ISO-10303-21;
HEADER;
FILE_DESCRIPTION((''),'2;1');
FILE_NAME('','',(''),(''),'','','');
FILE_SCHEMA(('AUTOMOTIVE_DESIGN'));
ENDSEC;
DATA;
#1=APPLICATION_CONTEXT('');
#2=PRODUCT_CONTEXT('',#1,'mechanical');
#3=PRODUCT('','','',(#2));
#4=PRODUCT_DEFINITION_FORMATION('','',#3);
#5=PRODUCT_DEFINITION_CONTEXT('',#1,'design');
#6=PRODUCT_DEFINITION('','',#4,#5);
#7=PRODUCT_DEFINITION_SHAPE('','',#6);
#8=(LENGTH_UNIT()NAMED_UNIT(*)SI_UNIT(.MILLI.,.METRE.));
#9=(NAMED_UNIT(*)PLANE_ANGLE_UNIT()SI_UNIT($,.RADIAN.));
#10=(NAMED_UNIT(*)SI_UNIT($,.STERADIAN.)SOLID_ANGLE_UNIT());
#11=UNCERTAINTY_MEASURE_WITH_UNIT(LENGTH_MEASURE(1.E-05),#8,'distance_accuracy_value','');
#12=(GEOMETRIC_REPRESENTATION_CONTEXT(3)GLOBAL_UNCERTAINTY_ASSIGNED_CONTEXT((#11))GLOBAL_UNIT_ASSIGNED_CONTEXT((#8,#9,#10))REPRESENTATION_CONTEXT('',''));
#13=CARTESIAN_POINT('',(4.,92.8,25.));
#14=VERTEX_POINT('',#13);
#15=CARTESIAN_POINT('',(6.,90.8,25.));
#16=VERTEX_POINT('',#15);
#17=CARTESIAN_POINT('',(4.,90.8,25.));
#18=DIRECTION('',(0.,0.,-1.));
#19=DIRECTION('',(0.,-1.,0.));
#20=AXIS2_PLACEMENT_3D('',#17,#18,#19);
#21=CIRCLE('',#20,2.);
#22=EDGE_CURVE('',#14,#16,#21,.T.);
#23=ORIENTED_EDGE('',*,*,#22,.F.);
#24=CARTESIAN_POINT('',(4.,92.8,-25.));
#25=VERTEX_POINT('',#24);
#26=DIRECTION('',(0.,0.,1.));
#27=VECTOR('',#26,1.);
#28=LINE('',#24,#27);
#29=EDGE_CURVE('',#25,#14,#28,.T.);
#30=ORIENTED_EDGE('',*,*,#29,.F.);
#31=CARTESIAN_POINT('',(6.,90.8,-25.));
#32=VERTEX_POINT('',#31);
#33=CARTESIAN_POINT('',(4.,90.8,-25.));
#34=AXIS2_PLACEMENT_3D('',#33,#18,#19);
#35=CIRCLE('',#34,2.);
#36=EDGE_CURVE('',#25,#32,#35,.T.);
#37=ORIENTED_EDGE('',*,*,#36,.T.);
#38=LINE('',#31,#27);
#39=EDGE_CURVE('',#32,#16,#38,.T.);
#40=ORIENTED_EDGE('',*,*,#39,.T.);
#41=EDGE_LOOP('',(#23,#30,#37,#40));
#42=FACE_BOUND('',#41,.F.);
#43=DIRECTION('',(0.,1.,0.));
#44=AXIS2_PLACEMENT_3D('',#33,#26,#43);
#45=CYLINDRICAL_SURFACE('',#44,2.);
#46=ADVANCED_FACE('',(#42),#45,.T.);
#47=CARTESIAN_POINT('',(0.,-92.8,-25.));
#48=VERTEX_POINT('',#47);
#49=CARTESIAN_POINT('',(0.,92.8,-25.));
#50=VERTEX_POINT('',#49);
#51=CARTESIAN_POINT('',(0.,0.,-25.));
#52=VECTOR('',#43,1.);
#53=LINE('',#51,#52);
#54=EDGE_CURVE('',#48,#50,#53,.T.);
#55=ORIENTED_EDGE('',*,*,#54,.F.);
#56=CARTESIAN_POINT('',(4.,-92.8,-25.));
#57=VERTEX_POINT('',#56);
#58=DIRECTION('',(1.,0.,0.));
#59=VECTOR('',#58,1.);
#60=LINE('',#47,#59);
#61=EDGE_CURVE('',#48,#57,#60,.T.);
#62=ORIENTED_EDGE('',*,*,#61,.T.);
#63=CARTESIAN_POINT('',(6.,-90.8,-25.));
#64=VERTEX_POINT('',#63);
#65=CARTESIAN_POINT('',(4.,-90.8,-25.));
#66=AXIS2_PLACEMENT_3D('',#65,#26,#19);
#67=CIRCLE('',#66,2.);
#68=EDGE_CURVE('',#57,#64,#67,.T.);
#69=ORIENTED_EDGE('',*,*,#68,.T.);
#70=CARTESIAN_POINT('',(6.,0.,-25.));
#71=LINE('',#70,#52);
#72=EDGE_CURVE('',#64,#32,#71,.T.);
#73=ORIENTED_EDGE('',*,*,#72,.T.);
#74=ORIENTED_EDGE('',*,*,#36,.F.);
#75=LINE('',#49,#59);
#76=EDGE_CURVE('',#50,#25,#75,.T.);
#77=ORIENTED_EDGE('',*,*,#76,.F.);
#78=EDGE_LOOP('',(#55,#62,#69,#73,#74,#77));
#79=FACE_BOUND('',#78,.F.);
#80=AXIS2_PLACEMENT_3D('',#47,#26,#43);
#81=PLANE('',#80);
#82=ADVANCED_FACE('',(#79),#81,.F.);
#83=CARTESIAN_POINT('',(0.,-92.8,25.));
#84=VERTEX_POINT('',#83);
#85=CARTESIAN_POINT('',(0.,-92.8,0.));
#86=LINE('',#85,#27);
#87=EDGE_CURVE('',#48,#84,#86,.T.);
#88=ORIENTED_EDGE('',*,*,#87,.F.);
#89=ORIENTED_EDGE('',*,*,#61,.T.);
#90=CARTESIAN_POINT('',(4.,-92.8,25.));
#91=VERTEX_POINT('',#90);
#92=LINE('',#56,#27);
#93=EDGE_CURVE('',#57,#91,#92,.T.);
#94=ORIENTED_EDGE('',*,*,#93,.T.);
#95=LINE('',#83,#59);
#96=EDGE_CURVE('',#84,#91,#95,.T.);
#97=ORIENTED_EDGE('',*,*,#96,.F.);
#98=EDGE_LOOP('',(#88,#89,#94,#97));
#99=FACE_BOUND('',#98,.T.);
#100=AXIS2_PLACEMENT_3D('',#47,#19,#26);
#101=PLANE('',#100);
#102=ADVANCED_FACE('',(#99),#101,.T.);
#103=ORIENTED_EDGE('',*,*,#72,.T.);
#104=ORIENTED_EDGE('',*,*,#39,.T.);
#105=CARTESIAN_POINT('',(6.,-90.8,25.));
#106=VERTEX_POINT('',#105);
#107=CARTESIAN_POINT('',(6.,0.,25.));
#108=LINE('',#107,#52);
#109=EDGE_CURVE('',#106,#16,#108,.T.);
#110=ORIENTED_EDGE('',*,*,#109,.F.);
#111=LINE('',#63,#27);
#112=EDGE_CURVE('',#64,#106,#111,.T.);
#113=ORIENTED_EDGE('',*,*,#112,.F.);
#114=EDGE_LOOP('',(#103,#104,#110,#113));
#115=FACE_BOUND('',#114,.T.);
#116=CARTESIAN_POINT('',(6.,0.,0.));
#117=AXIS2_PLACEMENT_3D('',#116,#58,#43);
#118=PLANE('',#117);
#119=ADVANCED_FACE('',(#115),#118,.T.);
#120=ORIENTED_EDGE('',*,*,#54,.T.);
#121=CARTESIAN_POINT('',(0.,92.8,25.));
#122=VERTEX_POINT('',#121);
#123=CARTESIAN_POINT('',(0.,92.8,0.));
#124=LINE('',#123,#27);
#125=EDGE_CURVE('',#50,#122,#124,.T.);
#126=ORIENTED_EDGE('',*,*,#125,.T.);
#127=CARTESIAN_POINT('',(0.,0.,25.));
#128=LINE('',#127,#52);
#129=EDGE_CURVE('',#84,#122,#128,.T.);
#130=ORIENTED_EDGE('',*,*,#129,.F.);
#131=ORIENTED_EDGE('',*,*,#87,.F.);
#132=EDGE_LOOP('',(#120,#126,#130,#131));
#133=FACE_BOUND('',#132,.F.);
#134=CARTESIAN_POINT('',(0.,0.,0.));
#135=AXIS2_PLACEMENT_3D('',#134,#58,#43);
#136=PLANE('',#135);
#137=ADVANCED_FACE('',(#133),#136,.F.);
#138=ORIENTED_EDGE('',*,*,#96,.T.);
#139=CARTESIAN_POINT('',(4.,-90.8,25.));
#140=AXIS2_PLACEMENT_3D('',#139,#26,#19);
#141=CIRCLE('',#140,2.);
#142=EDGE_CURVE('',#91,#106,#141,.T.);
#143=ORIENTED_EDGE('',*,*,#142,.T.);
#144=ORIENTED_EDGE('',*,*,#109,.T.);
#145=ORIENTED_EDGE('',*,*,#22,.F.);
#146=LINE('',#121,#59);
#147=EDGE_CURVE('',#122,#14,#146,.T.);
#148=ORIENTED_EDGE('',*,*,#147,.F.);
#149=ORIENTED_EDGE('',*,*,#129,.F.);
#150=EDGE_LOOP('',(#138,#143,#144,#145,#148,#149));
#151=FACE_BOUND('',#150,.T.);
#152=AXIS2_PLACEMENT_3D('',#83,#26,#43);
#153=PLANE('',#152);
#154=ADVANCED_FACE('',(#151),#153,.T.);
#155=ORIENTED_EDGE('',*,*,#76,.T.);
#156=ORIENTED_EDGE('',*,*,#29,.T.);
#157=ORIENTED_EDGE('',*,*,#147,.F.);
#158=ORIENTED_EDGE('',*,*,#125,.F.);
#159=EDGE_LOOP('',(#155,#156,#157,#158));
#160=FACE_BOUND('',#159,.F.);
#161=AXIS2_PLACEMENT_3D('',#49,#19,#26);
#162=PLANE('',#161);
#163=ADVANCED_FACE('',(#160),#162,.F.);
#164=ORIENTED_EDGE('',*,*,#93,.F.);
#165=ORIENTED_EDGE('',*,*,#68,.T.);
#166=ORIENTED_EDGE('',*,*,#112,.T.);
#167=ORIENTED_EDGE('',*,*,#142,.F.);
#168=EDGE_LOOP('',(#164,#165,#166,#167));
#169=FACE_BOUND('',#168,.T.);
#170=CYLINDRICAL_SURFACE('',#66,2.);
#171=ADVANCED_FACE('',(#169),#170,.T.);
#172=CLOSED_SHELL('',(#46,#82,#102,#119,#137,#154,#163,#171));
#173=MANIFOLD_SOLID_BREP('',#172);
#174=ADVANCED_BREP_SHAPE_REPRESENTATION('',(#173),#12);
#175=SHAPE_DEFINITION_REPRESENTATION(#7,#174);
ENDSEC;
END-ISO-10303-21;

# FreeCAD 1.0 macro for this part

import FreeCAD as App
import Part
import Sketcher

V = App.Vector


def edges_at(feature, points):
    """Names of the edges that pass closest to the given points."""
    edges = feature.Shape.Edges
    near = lambda p: min(range(len(edges)), key=lambda i: edges[i].distToShape(Part.Vertex(*p))[0])
    return sorted({f"Edge{near(p) + 1}" for p in points})


def add_polygon(sketch, points):
    """Adds a closed chain of lines whose ends are joined by coincident constraints."""
    first, n = sketch.GeometryCount, len(points)
    for a, b in zip(points, points[1:] + points[:1]):
        sketch.addGeometry(Part.LineSegment(App.Vector(*a, 0), App.Vector(*b, 0)), False)
    for i in range(n):
        sketch.addConstraint(Sketcher.Constraint("Coincident", first + i, 2, first + (i + 1) % n, 1))

doc = App.newDocument("Part")
body = doc.addObject("PartDesign::Body", "Body")

# Sketch on YZ plane
sketch1 = body.newObject("Sketcher::SketchObject", "Sketch")
sketch1.AttachmentSupport = (doc.getObject("YZ_Plane"), [""])
sketch1.MapMode = "FlatFace"
add_polygon(sketch1, [(-93, 25), (-93, -25), (93, -25), (93, 25)])  # lines 0-3
sketch1.addConstraint([
    Sketcher.Constraint("Vertical", 0),
    Sketcher.Constraint("Horizontal", 1),
    Sketcher.Constraint("Vertical", 2),
    Sketcher.Constraint("Horizontal", 3),
    Sketcher.Constraint("Symmetric", 0, 2, 2, 2, -1, 1),
    Sketcher.Constraint("DistanceY", 0, 2, 0, 1, 50.0),
    Sketcher.Constraint("DistanceX", 1, 1, 1, 2, 185.6),
])
pad1 = body.newObject("PartDesign::Pad", "Pad")
pad1.Profile = sketch1
pad1.Length = 6
doc.recompute()

fillet = body.newObject("PartDesign::Fillet", "Fillet")
fillet.Base = (pad1, edges_at(pad1, [(6, -92.8, 0), (6, 92.8, 0)]))
fillet.Radius = 2

doc.recompute()
